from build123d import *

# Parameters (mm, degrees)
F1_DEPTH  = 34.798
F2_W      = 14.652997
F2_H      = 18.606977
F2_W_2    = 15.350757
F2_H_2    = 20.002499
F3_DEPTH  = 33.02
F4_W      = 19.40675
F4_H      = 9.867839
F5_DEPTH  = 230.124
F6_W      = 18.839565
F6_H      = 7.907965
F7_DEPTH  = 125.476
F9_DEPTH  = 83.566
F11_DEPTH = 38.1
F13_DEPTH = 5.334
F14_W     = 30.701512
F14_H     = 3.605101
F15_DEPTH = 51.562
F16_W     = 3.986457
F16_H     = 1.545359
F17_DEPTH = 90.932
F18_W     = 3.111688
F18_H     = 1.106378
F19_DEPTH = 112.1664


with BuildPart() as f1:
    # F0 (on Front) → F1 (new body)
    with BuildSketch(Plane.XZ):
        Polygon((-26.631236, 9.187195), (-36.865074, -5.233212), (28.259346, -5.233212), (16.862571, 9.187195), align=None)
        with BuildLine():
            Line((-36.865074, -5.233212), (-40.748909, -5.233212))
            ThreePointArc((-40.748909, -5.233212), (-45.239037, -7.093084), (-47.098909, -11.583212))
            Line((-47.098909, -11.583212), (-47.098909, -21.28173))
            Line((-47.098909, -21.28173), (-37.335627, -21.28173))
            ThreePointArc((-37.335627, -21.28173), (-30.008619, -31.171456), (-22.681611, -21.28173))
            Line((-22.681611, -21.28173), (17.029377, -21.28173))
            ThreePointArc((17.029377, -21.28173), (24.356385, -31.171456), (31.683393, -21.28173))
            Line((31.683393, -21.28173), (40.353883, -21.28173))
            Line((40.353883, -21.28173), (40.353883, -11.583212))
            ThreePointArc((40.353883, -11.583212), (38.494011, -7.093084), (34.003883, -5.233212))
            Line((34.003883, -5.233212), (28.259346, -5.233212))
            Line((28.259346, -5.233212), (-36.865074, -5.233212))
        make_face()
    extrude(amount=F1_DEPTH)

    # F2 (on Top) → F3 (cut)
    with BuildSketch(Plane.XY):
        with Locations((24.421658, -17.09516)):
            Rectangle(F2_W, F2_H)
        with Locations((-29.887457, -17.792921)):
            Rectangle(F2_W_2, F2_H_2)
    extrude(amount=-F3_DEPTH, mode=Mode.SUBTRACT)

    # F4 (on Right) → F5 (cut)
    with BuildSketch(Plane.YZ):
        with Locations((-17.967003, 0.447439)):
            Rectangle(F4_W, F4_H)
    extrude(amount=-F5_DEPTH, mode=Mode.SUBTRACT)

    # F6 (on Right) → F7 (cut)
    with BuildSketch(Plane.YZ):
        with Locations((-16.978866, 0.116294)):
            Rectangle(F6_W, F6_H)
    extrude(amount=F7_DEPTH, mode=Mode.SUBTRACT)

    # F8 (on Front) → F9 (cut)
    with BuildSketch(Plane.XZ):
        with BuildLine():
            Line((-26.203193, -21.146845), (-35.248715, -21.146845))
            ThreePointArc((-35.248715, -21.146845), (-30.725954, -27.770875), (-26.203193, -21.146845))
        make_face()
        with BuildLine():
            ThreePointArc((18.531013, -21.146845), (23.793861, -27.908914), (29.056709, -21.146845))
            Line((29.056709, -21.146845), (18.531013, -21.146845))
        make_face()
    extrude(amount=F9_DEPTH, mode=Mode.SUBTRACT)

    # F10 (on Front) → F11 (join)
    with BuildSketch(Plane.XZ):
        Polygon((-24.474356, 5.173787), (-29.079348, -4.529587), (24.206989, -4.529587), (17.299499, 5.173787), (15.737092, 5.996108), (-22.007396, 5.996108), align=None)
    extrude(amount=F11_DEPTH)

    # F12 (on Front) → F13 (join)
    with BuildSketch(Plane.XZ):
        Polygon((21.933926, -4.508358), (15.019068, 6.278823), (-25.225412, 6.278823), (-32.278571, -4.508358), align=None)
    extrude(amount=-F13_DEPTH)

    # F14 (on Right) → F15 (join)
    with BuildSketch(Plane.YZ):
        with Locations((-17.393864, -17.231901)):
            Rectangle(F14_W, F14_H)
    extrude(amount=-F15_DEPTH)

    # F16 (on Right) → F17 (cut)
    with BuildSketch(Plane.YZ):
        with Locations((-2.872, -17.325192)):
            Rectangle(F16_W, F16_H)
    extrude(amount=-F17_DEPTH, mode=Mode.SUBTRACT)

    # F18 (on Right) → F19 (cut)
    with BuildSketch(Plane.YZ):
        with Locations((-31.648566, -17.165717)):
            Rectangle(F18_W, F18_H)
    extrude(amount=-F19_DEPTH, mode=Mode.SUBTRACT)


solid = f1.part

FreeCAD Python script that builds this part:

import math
import FreeCAD as App
import Part
import Sketcher
Q = App.Units.Quantity

doc = App.newDocument("Part")
body = doc.addObject("PartDesign::Body", "Body")

sketch1 = doc.addObject("Sketcher::SketchObject", "Sketch")
body.addObject(sketch1)
sketch1.AttachmentSupport = (doc.XZ_Plane, [""])
sketch1.MapMode = "FlatFace"
sketch1.addGeometry([
    Part.LineSegment(App.Vector(-26.6, 9.2, 0), App.Vector(-36.9, -5.2, 0)),
    Part.LineSegment(App.Vector(-36.9, -5.2, 0), App.Vector(-40.7, -5.2, 0)),
    Part.ArcOfCircle(Part.Circle(App.Vector(-40.7, -11.6, 0), App.Vector(0, 0, 1), 6.4), math.radians(90), math.radians(180)),
    Part.LineSegment(App.Vector(-47.1, -11.6, 0), App.Vector(-47.1, -21.3, 0)),
    Part.LineSegment(App.Vector(-47.1, -21.3, 0), App.Vector(-37.3, -21.3, 0)),
    Part.ArcOfCircle(Part.Circle(App.Vector(-30, -23.5, 0), App.Vector(0, 0, 1), 7.7), math.radians(163), math.radians(377)),
    Part.LineSegment(App.Vector(-22.7, -21.3, 0), App.Vector(17, -21.3, 0)),
    Part.ArcOfCircle(Part.Circle(App.Vector(24.4, -23.5, 0), App.Vector(0, 0, 1), 7.7), math.radians(163), math.radians(377)),
    Part.LineSegment(App.Vector(31.7, -21.3, 0), App.Vector(40.4, -21.3, 0)),
    Part.LineSegment(App.Vector(40.4, -21.3, 0), App.Vector(40.4, -11.6, 0)),
    Part.ArcOfCircle(Part.Circle(App.Vector(34, -11.6, 0), App.Vector(0, 0, 1), 6.4), math.radians(0), math.radians(90)),
    Part.LineSegment(App.Vector(34, -5.2, 0), App.Vector(28.3, -5.2, 0)),
    Part.LineSegment(App.Vector(28.3, -5.2, 0), App.Vector(16.9, 9.2, 0)),
    Part.LineSegment(App.Vector(16.9, 9.2, 0), App.Vector(-26.6, 9.2, 0)),
], False)
sketch1.addConstraint([
    Sketcher.Constraint("Coincident", 0, 2, 1, 1),
    Sketcher.Constraint("Tangent", 1, 2, 2, 1),
    Sketcher.Constraint("Tangent", 2, 2, 3, 1),
    Sketcher.Constraint("Coincident", 3, 2, 4, 1),
    Sketcher.Constraint("Coincident", 4, 2, 5, 1),
    Sketcher.Constraint("Coincident", 5, 2, 6, 1),
    Sketcher.Constraint("Coincident", 6, 2, 7, 1),
    Sketcher.Constraint("Coincident", 7, 2, 8, 1),
    Sketcher.Constraint("Coincident", 8, 2, 9, 1),
    Sketcher.Constraint("Tangent", 9, 2, 10, 1),
    Sketcher.Constraint("Tangent", 10, 2, 11, 1),
    Sketcher.Constraint("Coincident", 11, 2, 12, 1),
    Sketcher.Constraint("Coincident", 12, 2, 13, 1),
    Sketcher.Constraint("Coincident", 13, 2, 0, 1),
    Sketcher.Constraint("Horizontal", 1),
    Sketcher.Constraint("Vertical", 3),
    Sketcher.Constraint("Horizontal", 4),
    Sketcher.Constraint("Horizontal", 6),
    Sketcher.Constraint("Horizontal", 8),
    Sketcher.Constraint("Vertical", 9),
    Sketcher.Constraint("Horizontal", 11),
    Sketcher.Constraint("Horizontal", 13),
    Sketcher.Constraint("Equal", 5, 7),
    Sketcher.Constraint("Equal", 2, 10),
    Sketcher.Constraint("Horizontal", 5, 3, 7, 3),
    Sketcher.Constraint("Horizontal", 2, 3, 10, 3),
    Sketcher.Constraint("Horizontal", 4, 2, 5, 2),
    Sketcher.Constraint("Horizontal", 6, 2, 7, 2),
    Sketcher.Constraint("Radius", 2, Q("0.25 in")),
    Sketcher.Constraint("Radius", 5, Q("7.659046 mm")),
    Sketcher.Constraint("DistanceX", 4, 1, 4, 2, Q("9.763282 mm")),
    Sketcher.Constraint("DistanceX", 8, 1, 8, 2, Q("8.67049 mm")),
    Sketcher.Constraint("DistanceY", 5, 3, 2, 3, Q("11.929198 mm")),
    Sketcher.Constraint("DistanceX", 5, 3, 10, 3, Q("64.012502 mm")),
    Sketcher.Constraint("DistanceX", 1, 2, 5, 2, Q("18.067298 mm")),
    Sketcher.Constraint("Distance", 0, Q("17.682748 mm")),
    Sketcher.Constraint("DistanceX", 1, 2, 1, 1, Q("3.883835 mm")),
    Sketcher.Constraint("DistanceX", 11, 2, 11, 1, Q("5.744537 mm")),
    Sketcher.Constraint("DistanceX", 13, 2, 13, 1, Q("43.493807 mm")),
    Sketcher.Constraint("DistanceX", 2, 3, -1, 1, Q("40.748909 mm")),
    Sketcher.Constraint("DistanceY", 5, 3, -1, 1, Q("23.51241 mm")),
    Sketcher.Constraint("DistanceX", -1, 1, 12, 2, Q("16.862571 mm")),
])
pad1 = doc.addObject("PartDesign::Pad", "Pad")
body.addObject(pad1)
pad1.Profile = sketch1
pad1.Length = Q("1.37 in")

sketch2 = doc.addObject("Sketcher::SketchObject", "Sketch001")
body.addObject(sketch2)
sketch2.AttachmentSupport = (doc.XY_Plane, [""])
sketch2.MapMode = "FlatFace"
sketch2.addGeometry([
    Part.LineSegment(App.Vector(17, -8, 0), App.Vector(17, -26, 0)),
    Part.LineSegment(App.Vector(17, -26, 0), App.Vector(32, -26, 0)),
    Part.LineSegment(App.Vector(32, -26, 0), App.Vector(32, -8, 0)),
    Part.LineSegment(App.Vector(32, -8, 0), App.Vector(17, -8, 0)),
    Part.LineSegment(App.Vector(-38, -8, 0), App.Vector(-38, -28, 0)),
    Part.LineSegment(App.Vector(-38, -28, 0), App.Vector(-22, -28, 0)),
    Part.LineSegment(App.Vector(-22, -28, 0), App.Vector(-22, -8, 0)),
    Part.LineSegment(App.Vector(-22, -8, 0), App.Vector(-38, -8, 0)),
], False)
sketch2.addConstraint([
    Sketcher.Constraint("Coincident", 0, 2, 1, 1),
    Sketcher.Constraint("Coincident", 1, 2, 2, 1),
    Sketcher.Constraint("Coincident", 2, 2, 3, 1),
    Sketcher.Constraint("Coincident", 3, 2, 0, 1),
    Sketcher.Constraint("Coincident", 4, 2, 5, 1),
    Sketcher.Constraint("Coincident", 5, 2, 6, 1),
    Sketcher.Constraint("Coincident", 6, 2, 7, 1),
    Sketcher.Constraint("Coincident", 7, 2, 4, 1),
    Sketcher.Constraint("Vertical", 0),
    Sketcher.Constraint("Horizontal", 1),
    Sketcher.Constraint("Vertical", 2),
    Sketcher.Constraint("Horizontal", 3),
    Sketcher.Constraint("Vertical", 4),
    Sketcher.Constraint("Horizontal", 5),
    Sketcher.Constraint("Vertical", 6),
    Sketcher.Constraint("Horizontal", 7),
    Sketcher.Constraint("Horizontal", 3, 2, 6, 2),
    Sketcher.Constraint("DistanceY", 4, 2, 4, 1, Q("0.7875 in")),
    Sketcher.Constraint("DistanceX", 1, 1, 1, 2, Q("14.652997 mm")),
    Sketcher.Constraint("DistanceX", 5, 1, 5, 2, Q("15.350757 mm")),
    Sketcher.Constraint("DistanceY", 0, 2, 0, 1, Q("18.606977 mm")),
    Sketcher.Constraint("DistanceX", -1, 1, 0, 2, Q("17.09516 mm")),
    Sketcher.Constraint("DistanceY", 0, 2, -1, 1, Q("26.398649 mm")),
    Sketcher.Constraint("DistanceX", 5, 2, -1, 1, Q("22.212079 mm")),
])
pocket1 = doc.addObject("PartDesign::Pocket", "Pocket")
body.addObject(pocket1)
pocket1.Profile = sketch2
pocket1.Length = Q("1.3 in")

sketch3 = doc.addObject("Sketcher::SketchObject", "Sketch002")
body.addObject(sketch3)
sketch3.AttachmentSupport = (doc.YZ_Plane, [""])
sketch3.MapMode = "FlatFace"
sketch3.addGeometry([
    Part.LineSegment(App.Vector(-28, 5, 0), App.Vector(-28, -4, 0)),
    Part.LineSegment(App.Vector(-28, -4, 0), App.Vector(-8, -4, 0)),
    Part.LineSegment(App.Vector(-8, -4, 0), App.Vector(-8, 5, 0)),
    Part.LineSegment(App.Vector(-8, 5, 0), App.Vector(-28, 5, 0)),
], False)
sketch3.addConstraint([
    Sketcher.Constraint("Coincident", 0, 2, 1, 1),
    Sketcher.Constraint("Coincident", 1, 2, 2, 1),
    Sketcher.Constraint("Coincident", 2, 2, 3, 1),
    Sketcher.Constraint("Coincident", 3, 2, 0, 1),
    Sketcher.Constraint("Vertical", 0),
    Sketcher.Constraint("Horizontal", 1),
    Sketcher.Constraint("Vertical", 2),
    Sketcher.Constraint("Horizontal", 3),
    Sketcher.Constraint("DistanceX", 1, 1, 1, 2, Q("19.40675 mm")),
    Sketcher.Constraint("DistanceY", 0, 2, 0, 1, Q("9.867839 mm")),
    Sketcher.Constraint("DistanceY", 0, 2, -1, 1, Q("4.48648 mm")),
    Sketcher.Constraint("DistanceX", 1, 2, -1, 1, Q("8.263628 mm")),
])
pocket2 = doc.addObject("PartDesign::Pocket", "Pocket001")
body.addObject(pocket2)
pocket2.Profile = sketch3
pocket2.Length = Q("9.06 in")

sketch4 = doc.addObject("Sketcher::SketchObject", "Sketch003")
body.addObject(sketch4)
sketch4.AttachmentSupport = (doc.YZ_Plane, [""])
sketch4.MapMode = "FlatFace"
sketch4.addGeometry([
    Part.LineSegment(App.Vector(-26, 4, 0), App.Vector(-26, -4, 0)),
    Part.LineSegment(App.Vector(-26, -4, 0), App.Vector(-8, -4, 0)),
    Part.LineSegment(App.Vector(-8, -4, 0), App.Vector(-8, 4, 0)),
    Part.LineSegment(App.Vector(-8, 4, 0), App.Vector(-26, 4, 0)),
], False)
sketch4.addConstraint([
    Sketcher.Constraint("Coincident", 0, 2, 1, 1),
    Sketcher.Constraint("Coincident", 1, 2, 2, 1),
    Sketcher.Constraint("Coincident", 2, 2, 3, 1),
    Sketcher.Constraint("Coincident", 3, 2, 0, 1),
    Sketcher.Constraint("Vertical", 0),
    Sketcher.Constraint("Horizontal", 1),
    Sketcher.Constraint("Vertical", 2),
    Sketcher.Constraint("Horizontal", 3),
    Sketcher.Constraint("DistanceX", 1, 1, 1, 2, Q("18.839565 mm")),
    Sketcher.Constraint("DistanceY", 0, 2, 0, 1, Q("7.907965 mm")),
    Sketcher.Constraint("DistanceX", 0, 2, -1, 1, Q("26.398649 mm")),
    Sketcher.Constraint("DistanceY", 0, 2, -1, 1, Q("3.837689 mm")),
])
pocket3 = doc.addObject("PartDesign::Pocket", "Pocket002")
body.addObject(pocket3)
pocket3.Profile = sketch4
pocket3.Length = Q("4.94 in")
pocket3.Reversed = True

sketch5 = doc.addObject("Sketcher::SketchObject", "Sketch004")
body.addObject(sketch5)
sketch5.AttachmentSupport = (doc.XZ_Plane, [""])
sketch5.MapMode = "FlatFace"
sketch5.addGeometry([
    Part.LineSegment(App.Vector(-26.2, -21.1, 0), App.Vector(-35.2, -21.1, 0)),
    Part.ArcOfCircle(Part.Circle(App.Vector(-30.7, -22.9, 0), App.Vector(0, 0, 1), 4.9), math.radians(159), math.radians(381)),
    Part.ArcOfCircle(Part.Circle(App.Vector(23.8, -22.5, 0), App.Vector(0, 0, 1), 5.4), math.radians(166), math.radians(374)),
    Part.LineSegment(App.Vector(29.1, -21.1, 0), App.Vector(18.5, -21.1, 0)),
], False)
sketch5.addConstraint([
    Sketcher.Constraint("Coincident", 0, 1, 1, 2),
    Sketcher.Constraint("Coincident", 1, 1, 0, 2),
    Sketcher.Constraint("Coincident", 2, 1, 3, 2),
    Sketcher.Constraint("Coincident", 3, 1, 2, 2),
    Sketcher.Constraint("Horizontal", 0),
    Sketcher.Constraint("Horizontal", 3),
    Sketcher.Constraint("Horizontal", 1, 1, 2, 1),
    Sketcher.Constraint("Radius", 1, Q("4.856042 mm")),
    Sketcher.Constraint("Radius", 2, Q("5.429044 mm")),
    Sketcher.Constraint("DistanceX", 0, 2, 0, 1, Q("9.045522 mm")),
    Sketcher.Constraint("DistanceX", 0, 1, 3, 1, Q("55.259902 mm")),
    Sketcher.Constraint("DistanceX", 3, 2, 3, 1, Q("10.525696 mm")),
    Sketcher.Constraint("DistanceX", -1, 1, 2, 3, Q("23.793861 mm")),
    Sketcher.Constraint("DistanceY", 2, 3, -1, 1, Q("22.47987 mm")),
])
pocket4 = doc.addObject("PartDesign::Pocket", "Pocket003")
body.addObject(pocket4)
pocket4.Profile = sketch5
pocket4.Length = Q("3.29 in")
pocket4.Reversed = True

sketch6 = doc.addObject("Sketcher::SketchObject", "Sketch005")
body.addObject(sketch6)
sketch6.AttachmentSupport = (doc.XZ_Plane, [""])
sketch6.MapMode = "FlatFace"
sketch6.addGeometry([
    Part.LineSegment(App.Vector(-24.5, 5.2, 0), App.Vector(-29.1, -4.5, 0)),
    Part.LineSegment(App.Vector(-29.1, -4.5, 0), App.Vector(24.2, -4.5, 0)),
    Part.LineSegment(App.Vector(24.2, -4.5, 0), App.Vector(17.3, 5.2, 0)),
    Part.LineSegment(App.Vector(17.3, 5.2, 0), App.Vector(15.7, 6, 0)),
    Part.LineSegment(App.Vector(15.7, 6, 0), App.Vector(-22, 6, 0)),
    Part.LineSegment(App.Vector(-22, 6, 0), App.Vector(-24.5, 5.2, 0)),
], False)
sketch6.addConstraint([
    Sketcher.Constraint("Coincident", 0, 2, 1, 1),
    Sketcher.Constraint("Coincident", 1, 2, 2, 1),
    Sketcher.Constraint("Coincident", 2, 2, 3, 1),
    Sketcher.Constraint("Coincident", 3, 2, 4, 1),
    Sketcher.Constraint("Coincident", 4, 2, 5, 1),
    Sketcher.Constraint("Coincident", 5, 2, 0, 1),
    Sketcher.Constraint("Horizontal", 1),
    Sketcher.Constraint("Horizontal", 4),
    Sketcher.Constraint("Horizontal", 2, 2, 5, 2),
    Sketcher.Constraint("DistanceX", 4, 2, 4, 1, Q("37.744488 mm")),
    Sketcher.Constraint("DistanceX", -1, 1, 2, 2, Q("17.299499 mm")),
    Sketcher.Constraint("DistanceX", 1, 1, 1, 2, Q("53.286337 mm")),
    Sketcher.Constraint("DistanceX", -1, 1, 1, 2, Q("24.206989 mm")),
    Sketcher.Constraint("DistanceY", -1, 1, 3, 2, Q("5.996108 mm")),
    Sketcher.Constraint("DistanceY", 2, 2, 3, 2, Q("0.822321 mm")),
    Sketcher.Constraint("DistanceX", 0, 2, 3, 2, Q("44.81644 mm")),
    Sketcher.Constraint("DistanceX", 5, 2, 4, 2, Q("2.46696 mm")),
    Sketcher.Constraint("Distance", 0, Q("10.740643 mm")),
])
pad2 = doc.addObject("PartDesign::Pad", "Pad001")
body.addObject(pad2)
pad2.Profile = sketch6
pad2.Length = Q("1.5 in")

sketch7 = doc.addObject("Sketcher::SketchObject", "Sketch006")
body.addObject(sketch7)
sketch7.AttachmentSupport = (doc.XZ_Plane, [""])
sketch7.MapMode = "FlatFace"
sketch7.addGeometry([
    Part.LineSegment(App.Vector(22, -5, 0), App.Vector(15, 6, 0)),
    Part.LineSegment(App.Vector(15, 6, 0), App.Vector(-25, 6, 0)),
    Part.LineSegment(App.Vector(-25, 6, 0), App.Vector(-32, -5, 0)),
    Part.LineSegment(App.Vector(-32, -5, 0), App.Vector(22, -5, 0)),
], False)
sketch7.addConstraint([
    Sketcher.Constraint("Coincident", 0, 2, 1, 1),
    Sketcher.Constraint("Coincident", 1, 2, 2, 1),
    Sketcher.Constraint("Coincident", 2, 2, 3, 1),
    Sketcher.Constraint("Coincident", 3, 2, 0, 1),
    Sketcher.Constraint("Horizontal", 1),
    Sketcher.Constraint("Horizontal", 3),
    Sketcher.Constraint("DistanceX", 1, 2, 1, 1, Q("40.24448 mm")),
    Sketcher.Constraint("Distance", 2, Q("12.888379 mm")),
    Sketcher.Constraint("DistanceX", 3, 1, 3, 2, Q("54.212497 mm")),
    Sketcher.Constraint("DistanceX", -1, 1, 0, 2, Q("15.019068 mm")),
    Sketcher.Constraint("DistanceX", 2, 2, -1, 1, Q("32.278571 mm")),
    Sketcher.Constraint("DistanceY", 2, 2, -1, 1, Q("4.508358 mm")),
])
pad3 = doc.addObject("PartDesign::Pad", "Pad002")
body.addObject(pad3)
pad3.Profile = sketch7
pad3.Length = Q("0.21 in")
pad3.Reversed = True

sketch8 = doc.addObject("Sketcher::SketchObject", "Sketch007")
body.addObject(sketch8)
sketch8.AttachmentSupport = (doc.YZ_Plane, [""])
sketch8.MapMode = "FlatFace"
sketch8.addGeometry([
    Part.LineSegment(App.Vector(-32.7, -15.4, 0), App.Vector(-32.7, -19, 0)),
    Part.LineSegment(App.Vector(-32.7, -19, 0), App.Vector(-2, -19, 0)),
    Part.LineSegment(App.Vector(-2, -19, 0), App.Vector(-2, -15.4, 0)),
    Part.LineSegment(App.Vector(-2, -15.4, 0), App.Vector(-32.7, -15.4, 0)),
], False)
sketch8.addConstraint([
    Sketcher.Constraint("Coincident", 0, 2, 1, 1),
    Sketcher.Constraint("Coincident", 1, 2, 2, 1),
    Sketcher.Constraint("Coincident", 2, 2, 3, 1),
    Sketcher.Constraint("Coincident", 3, 2, 0, 1),
    Sketcher.Constraint("Vertical", 0),
    Sketcher.Constraint("Horizontal", 1),
    Sketcher.Constraint("Vertical", 2),
    Sketcher.Constraint("Horizontal", 3),
    Sketcher.Constraint("DistanceY", 0, 2, 0, 1, Q("3.605101 mm")),
    Sketcher.Constraint("DistanceX", 1, 1, 1, 2, Q("30.701512 mm")),
    Sketcher.Constraint("DistanceX", 0, 2, -1, 1, Q("32.74462 mm")),
    Sketcher.Constraint("DistanceY", 0, 2, -1, 1, Q("19.034451 mm")),
])
pad4 = doc.addObject("PartDesign::Pad", "Pad003")
body.addObject(pad4)
pad4.Profile = sketch8
pad4.Length = Q("2.03 in")
pad4.Reversed = True

sketch9 = doc.addObject("Sketcher::SketchObject", "Sketch008")
body.addObject(sketch9)
sketch9.AttachmentSupport = (doc.YZ_Plane, [""])
sketch9.MapMode = "FlatFace"
sketch9.addGeometry([
    Part.LineSegment(App.Vector(-4.9, -16.6, 0), App.Vector(-4.9, -18.1, 0)),
    Part.LineSegment(App.Vector(-4.9, -18.1, 0), App.Vector(-0.9, -18.1, 0)),
    Part.LineSegment(App.Vector(-0.9, -18.1, 0), App.Vector(-0.9, -16.6, 0)),
    Part.LineSegment(App.Vector(-0.9, -16.6, 0), App.Vector(-4.9, -16.6, 0)),
], False)
sketch9.addConstraint([
    Sketcher.Constraint("Coincident", 0, 2, 1, 1),
    Sketcher.Constraint("Coincident", 1, 2, 2, 1),
    Sketcher.Constraint("Coincident", 2, 2, 3, 1),
    Sketcher.Constraint("Coincident", 3, 2, 0, 1),
    Sketcher.Constraint("Vertical", 0),
    Sketcher.Constraint("Horizontal", 1),
    Sketcher.Constraint("Vertical", 2),
    Sketcher.Constraint("Horizontal", 3),
    Sketcher.Constraint("DistanceY", 0, 2, 0, 1, Q("1.545359 mm")),
    Sketcher.Constraint("DistanceX", 1, 1, 1, 2, Q("3.986457 mm")),
    Sketcher.Constraint("DistanceX", 0, 2, -1, 1, Q("4.865228 mm")),
    Sketcher.Constraint("DistanceY", 0, 2, -1, 1, Q("18.097872 mm")),
])
pocket5 = doc.addObject("PartDesign::Pocket", "Pocket004")
body.addObject(pocket5)
pocket5.Profile = sketch9
pocket5.Length = Q("3.58 in")

sketch10 = doc.addObject("Sketcher::SketchObject", "Sketch009")
body.addObject(sketch10)
sketch10.AttachmentSupport = (doc.YZ_Plane, [""])
sketch10.MapMode = "FlatFace"
sketch10.addGeometry([
    Part.LineSegment(App.Vector(-33.2, -16.6, 0), App.Vector(-33.2, -17.7, 0)),
    Part.LineSegment(App.Vector(-33.2, -17.7, 0), App.Vector(-30.1, -17.7, 0)),
    Part.LineSegment(App.Vector(-30.1, -17.7, 0), App.Vector(-30.1, -16.6, 0)),
    Part.LineSegment(App.Vector(-30.1, -16.6, 0), App.Vector(-33.2, -16.6, 0)),
], False)
sketch10.addConstraint([
    Sketcher.Constraint("Coincident", 0, 2, 1, 1),
    Sketcher.Constraint("Coincident", 1, 2, 2, 1),
    Sketcher.Constraint("Coincident", 2, 2, 3, 1),
    Sketcher.Constraint("Coincident", 3, 2, 0, 1),
    Sketcher.Constraint("Vertical", 0),
    Sketcher.Constraint("Horizontal", 1),
    Sketcher.Constraint("Vertical", 2),
    Sketcher.Constraint("Horizontal", 3),
    Sketcher.Constraint("DistanceX", 1, 1, 1, 2, Q("3.111688 mm")),
    Sketcher.Constraint("DistanceY", 0, 2, 0, 1, Q("1.106378 mm")),
    Sketcher.Constraint("DistanceX", 0, 2, -1, 1, Q("33.20441 mm")),
    Sketcher.Constraint("DistanceY", 2, 2, -1, 1, Q("16.612528 mm")),
])
pocket6 = doc.addObject("PartDesign::Pocket", "Pocket005")
body.addObject(pocket6)
pocket6.Profile = sketch10
pocket6.Length = Q("4.416 in")

doc.recompute()
